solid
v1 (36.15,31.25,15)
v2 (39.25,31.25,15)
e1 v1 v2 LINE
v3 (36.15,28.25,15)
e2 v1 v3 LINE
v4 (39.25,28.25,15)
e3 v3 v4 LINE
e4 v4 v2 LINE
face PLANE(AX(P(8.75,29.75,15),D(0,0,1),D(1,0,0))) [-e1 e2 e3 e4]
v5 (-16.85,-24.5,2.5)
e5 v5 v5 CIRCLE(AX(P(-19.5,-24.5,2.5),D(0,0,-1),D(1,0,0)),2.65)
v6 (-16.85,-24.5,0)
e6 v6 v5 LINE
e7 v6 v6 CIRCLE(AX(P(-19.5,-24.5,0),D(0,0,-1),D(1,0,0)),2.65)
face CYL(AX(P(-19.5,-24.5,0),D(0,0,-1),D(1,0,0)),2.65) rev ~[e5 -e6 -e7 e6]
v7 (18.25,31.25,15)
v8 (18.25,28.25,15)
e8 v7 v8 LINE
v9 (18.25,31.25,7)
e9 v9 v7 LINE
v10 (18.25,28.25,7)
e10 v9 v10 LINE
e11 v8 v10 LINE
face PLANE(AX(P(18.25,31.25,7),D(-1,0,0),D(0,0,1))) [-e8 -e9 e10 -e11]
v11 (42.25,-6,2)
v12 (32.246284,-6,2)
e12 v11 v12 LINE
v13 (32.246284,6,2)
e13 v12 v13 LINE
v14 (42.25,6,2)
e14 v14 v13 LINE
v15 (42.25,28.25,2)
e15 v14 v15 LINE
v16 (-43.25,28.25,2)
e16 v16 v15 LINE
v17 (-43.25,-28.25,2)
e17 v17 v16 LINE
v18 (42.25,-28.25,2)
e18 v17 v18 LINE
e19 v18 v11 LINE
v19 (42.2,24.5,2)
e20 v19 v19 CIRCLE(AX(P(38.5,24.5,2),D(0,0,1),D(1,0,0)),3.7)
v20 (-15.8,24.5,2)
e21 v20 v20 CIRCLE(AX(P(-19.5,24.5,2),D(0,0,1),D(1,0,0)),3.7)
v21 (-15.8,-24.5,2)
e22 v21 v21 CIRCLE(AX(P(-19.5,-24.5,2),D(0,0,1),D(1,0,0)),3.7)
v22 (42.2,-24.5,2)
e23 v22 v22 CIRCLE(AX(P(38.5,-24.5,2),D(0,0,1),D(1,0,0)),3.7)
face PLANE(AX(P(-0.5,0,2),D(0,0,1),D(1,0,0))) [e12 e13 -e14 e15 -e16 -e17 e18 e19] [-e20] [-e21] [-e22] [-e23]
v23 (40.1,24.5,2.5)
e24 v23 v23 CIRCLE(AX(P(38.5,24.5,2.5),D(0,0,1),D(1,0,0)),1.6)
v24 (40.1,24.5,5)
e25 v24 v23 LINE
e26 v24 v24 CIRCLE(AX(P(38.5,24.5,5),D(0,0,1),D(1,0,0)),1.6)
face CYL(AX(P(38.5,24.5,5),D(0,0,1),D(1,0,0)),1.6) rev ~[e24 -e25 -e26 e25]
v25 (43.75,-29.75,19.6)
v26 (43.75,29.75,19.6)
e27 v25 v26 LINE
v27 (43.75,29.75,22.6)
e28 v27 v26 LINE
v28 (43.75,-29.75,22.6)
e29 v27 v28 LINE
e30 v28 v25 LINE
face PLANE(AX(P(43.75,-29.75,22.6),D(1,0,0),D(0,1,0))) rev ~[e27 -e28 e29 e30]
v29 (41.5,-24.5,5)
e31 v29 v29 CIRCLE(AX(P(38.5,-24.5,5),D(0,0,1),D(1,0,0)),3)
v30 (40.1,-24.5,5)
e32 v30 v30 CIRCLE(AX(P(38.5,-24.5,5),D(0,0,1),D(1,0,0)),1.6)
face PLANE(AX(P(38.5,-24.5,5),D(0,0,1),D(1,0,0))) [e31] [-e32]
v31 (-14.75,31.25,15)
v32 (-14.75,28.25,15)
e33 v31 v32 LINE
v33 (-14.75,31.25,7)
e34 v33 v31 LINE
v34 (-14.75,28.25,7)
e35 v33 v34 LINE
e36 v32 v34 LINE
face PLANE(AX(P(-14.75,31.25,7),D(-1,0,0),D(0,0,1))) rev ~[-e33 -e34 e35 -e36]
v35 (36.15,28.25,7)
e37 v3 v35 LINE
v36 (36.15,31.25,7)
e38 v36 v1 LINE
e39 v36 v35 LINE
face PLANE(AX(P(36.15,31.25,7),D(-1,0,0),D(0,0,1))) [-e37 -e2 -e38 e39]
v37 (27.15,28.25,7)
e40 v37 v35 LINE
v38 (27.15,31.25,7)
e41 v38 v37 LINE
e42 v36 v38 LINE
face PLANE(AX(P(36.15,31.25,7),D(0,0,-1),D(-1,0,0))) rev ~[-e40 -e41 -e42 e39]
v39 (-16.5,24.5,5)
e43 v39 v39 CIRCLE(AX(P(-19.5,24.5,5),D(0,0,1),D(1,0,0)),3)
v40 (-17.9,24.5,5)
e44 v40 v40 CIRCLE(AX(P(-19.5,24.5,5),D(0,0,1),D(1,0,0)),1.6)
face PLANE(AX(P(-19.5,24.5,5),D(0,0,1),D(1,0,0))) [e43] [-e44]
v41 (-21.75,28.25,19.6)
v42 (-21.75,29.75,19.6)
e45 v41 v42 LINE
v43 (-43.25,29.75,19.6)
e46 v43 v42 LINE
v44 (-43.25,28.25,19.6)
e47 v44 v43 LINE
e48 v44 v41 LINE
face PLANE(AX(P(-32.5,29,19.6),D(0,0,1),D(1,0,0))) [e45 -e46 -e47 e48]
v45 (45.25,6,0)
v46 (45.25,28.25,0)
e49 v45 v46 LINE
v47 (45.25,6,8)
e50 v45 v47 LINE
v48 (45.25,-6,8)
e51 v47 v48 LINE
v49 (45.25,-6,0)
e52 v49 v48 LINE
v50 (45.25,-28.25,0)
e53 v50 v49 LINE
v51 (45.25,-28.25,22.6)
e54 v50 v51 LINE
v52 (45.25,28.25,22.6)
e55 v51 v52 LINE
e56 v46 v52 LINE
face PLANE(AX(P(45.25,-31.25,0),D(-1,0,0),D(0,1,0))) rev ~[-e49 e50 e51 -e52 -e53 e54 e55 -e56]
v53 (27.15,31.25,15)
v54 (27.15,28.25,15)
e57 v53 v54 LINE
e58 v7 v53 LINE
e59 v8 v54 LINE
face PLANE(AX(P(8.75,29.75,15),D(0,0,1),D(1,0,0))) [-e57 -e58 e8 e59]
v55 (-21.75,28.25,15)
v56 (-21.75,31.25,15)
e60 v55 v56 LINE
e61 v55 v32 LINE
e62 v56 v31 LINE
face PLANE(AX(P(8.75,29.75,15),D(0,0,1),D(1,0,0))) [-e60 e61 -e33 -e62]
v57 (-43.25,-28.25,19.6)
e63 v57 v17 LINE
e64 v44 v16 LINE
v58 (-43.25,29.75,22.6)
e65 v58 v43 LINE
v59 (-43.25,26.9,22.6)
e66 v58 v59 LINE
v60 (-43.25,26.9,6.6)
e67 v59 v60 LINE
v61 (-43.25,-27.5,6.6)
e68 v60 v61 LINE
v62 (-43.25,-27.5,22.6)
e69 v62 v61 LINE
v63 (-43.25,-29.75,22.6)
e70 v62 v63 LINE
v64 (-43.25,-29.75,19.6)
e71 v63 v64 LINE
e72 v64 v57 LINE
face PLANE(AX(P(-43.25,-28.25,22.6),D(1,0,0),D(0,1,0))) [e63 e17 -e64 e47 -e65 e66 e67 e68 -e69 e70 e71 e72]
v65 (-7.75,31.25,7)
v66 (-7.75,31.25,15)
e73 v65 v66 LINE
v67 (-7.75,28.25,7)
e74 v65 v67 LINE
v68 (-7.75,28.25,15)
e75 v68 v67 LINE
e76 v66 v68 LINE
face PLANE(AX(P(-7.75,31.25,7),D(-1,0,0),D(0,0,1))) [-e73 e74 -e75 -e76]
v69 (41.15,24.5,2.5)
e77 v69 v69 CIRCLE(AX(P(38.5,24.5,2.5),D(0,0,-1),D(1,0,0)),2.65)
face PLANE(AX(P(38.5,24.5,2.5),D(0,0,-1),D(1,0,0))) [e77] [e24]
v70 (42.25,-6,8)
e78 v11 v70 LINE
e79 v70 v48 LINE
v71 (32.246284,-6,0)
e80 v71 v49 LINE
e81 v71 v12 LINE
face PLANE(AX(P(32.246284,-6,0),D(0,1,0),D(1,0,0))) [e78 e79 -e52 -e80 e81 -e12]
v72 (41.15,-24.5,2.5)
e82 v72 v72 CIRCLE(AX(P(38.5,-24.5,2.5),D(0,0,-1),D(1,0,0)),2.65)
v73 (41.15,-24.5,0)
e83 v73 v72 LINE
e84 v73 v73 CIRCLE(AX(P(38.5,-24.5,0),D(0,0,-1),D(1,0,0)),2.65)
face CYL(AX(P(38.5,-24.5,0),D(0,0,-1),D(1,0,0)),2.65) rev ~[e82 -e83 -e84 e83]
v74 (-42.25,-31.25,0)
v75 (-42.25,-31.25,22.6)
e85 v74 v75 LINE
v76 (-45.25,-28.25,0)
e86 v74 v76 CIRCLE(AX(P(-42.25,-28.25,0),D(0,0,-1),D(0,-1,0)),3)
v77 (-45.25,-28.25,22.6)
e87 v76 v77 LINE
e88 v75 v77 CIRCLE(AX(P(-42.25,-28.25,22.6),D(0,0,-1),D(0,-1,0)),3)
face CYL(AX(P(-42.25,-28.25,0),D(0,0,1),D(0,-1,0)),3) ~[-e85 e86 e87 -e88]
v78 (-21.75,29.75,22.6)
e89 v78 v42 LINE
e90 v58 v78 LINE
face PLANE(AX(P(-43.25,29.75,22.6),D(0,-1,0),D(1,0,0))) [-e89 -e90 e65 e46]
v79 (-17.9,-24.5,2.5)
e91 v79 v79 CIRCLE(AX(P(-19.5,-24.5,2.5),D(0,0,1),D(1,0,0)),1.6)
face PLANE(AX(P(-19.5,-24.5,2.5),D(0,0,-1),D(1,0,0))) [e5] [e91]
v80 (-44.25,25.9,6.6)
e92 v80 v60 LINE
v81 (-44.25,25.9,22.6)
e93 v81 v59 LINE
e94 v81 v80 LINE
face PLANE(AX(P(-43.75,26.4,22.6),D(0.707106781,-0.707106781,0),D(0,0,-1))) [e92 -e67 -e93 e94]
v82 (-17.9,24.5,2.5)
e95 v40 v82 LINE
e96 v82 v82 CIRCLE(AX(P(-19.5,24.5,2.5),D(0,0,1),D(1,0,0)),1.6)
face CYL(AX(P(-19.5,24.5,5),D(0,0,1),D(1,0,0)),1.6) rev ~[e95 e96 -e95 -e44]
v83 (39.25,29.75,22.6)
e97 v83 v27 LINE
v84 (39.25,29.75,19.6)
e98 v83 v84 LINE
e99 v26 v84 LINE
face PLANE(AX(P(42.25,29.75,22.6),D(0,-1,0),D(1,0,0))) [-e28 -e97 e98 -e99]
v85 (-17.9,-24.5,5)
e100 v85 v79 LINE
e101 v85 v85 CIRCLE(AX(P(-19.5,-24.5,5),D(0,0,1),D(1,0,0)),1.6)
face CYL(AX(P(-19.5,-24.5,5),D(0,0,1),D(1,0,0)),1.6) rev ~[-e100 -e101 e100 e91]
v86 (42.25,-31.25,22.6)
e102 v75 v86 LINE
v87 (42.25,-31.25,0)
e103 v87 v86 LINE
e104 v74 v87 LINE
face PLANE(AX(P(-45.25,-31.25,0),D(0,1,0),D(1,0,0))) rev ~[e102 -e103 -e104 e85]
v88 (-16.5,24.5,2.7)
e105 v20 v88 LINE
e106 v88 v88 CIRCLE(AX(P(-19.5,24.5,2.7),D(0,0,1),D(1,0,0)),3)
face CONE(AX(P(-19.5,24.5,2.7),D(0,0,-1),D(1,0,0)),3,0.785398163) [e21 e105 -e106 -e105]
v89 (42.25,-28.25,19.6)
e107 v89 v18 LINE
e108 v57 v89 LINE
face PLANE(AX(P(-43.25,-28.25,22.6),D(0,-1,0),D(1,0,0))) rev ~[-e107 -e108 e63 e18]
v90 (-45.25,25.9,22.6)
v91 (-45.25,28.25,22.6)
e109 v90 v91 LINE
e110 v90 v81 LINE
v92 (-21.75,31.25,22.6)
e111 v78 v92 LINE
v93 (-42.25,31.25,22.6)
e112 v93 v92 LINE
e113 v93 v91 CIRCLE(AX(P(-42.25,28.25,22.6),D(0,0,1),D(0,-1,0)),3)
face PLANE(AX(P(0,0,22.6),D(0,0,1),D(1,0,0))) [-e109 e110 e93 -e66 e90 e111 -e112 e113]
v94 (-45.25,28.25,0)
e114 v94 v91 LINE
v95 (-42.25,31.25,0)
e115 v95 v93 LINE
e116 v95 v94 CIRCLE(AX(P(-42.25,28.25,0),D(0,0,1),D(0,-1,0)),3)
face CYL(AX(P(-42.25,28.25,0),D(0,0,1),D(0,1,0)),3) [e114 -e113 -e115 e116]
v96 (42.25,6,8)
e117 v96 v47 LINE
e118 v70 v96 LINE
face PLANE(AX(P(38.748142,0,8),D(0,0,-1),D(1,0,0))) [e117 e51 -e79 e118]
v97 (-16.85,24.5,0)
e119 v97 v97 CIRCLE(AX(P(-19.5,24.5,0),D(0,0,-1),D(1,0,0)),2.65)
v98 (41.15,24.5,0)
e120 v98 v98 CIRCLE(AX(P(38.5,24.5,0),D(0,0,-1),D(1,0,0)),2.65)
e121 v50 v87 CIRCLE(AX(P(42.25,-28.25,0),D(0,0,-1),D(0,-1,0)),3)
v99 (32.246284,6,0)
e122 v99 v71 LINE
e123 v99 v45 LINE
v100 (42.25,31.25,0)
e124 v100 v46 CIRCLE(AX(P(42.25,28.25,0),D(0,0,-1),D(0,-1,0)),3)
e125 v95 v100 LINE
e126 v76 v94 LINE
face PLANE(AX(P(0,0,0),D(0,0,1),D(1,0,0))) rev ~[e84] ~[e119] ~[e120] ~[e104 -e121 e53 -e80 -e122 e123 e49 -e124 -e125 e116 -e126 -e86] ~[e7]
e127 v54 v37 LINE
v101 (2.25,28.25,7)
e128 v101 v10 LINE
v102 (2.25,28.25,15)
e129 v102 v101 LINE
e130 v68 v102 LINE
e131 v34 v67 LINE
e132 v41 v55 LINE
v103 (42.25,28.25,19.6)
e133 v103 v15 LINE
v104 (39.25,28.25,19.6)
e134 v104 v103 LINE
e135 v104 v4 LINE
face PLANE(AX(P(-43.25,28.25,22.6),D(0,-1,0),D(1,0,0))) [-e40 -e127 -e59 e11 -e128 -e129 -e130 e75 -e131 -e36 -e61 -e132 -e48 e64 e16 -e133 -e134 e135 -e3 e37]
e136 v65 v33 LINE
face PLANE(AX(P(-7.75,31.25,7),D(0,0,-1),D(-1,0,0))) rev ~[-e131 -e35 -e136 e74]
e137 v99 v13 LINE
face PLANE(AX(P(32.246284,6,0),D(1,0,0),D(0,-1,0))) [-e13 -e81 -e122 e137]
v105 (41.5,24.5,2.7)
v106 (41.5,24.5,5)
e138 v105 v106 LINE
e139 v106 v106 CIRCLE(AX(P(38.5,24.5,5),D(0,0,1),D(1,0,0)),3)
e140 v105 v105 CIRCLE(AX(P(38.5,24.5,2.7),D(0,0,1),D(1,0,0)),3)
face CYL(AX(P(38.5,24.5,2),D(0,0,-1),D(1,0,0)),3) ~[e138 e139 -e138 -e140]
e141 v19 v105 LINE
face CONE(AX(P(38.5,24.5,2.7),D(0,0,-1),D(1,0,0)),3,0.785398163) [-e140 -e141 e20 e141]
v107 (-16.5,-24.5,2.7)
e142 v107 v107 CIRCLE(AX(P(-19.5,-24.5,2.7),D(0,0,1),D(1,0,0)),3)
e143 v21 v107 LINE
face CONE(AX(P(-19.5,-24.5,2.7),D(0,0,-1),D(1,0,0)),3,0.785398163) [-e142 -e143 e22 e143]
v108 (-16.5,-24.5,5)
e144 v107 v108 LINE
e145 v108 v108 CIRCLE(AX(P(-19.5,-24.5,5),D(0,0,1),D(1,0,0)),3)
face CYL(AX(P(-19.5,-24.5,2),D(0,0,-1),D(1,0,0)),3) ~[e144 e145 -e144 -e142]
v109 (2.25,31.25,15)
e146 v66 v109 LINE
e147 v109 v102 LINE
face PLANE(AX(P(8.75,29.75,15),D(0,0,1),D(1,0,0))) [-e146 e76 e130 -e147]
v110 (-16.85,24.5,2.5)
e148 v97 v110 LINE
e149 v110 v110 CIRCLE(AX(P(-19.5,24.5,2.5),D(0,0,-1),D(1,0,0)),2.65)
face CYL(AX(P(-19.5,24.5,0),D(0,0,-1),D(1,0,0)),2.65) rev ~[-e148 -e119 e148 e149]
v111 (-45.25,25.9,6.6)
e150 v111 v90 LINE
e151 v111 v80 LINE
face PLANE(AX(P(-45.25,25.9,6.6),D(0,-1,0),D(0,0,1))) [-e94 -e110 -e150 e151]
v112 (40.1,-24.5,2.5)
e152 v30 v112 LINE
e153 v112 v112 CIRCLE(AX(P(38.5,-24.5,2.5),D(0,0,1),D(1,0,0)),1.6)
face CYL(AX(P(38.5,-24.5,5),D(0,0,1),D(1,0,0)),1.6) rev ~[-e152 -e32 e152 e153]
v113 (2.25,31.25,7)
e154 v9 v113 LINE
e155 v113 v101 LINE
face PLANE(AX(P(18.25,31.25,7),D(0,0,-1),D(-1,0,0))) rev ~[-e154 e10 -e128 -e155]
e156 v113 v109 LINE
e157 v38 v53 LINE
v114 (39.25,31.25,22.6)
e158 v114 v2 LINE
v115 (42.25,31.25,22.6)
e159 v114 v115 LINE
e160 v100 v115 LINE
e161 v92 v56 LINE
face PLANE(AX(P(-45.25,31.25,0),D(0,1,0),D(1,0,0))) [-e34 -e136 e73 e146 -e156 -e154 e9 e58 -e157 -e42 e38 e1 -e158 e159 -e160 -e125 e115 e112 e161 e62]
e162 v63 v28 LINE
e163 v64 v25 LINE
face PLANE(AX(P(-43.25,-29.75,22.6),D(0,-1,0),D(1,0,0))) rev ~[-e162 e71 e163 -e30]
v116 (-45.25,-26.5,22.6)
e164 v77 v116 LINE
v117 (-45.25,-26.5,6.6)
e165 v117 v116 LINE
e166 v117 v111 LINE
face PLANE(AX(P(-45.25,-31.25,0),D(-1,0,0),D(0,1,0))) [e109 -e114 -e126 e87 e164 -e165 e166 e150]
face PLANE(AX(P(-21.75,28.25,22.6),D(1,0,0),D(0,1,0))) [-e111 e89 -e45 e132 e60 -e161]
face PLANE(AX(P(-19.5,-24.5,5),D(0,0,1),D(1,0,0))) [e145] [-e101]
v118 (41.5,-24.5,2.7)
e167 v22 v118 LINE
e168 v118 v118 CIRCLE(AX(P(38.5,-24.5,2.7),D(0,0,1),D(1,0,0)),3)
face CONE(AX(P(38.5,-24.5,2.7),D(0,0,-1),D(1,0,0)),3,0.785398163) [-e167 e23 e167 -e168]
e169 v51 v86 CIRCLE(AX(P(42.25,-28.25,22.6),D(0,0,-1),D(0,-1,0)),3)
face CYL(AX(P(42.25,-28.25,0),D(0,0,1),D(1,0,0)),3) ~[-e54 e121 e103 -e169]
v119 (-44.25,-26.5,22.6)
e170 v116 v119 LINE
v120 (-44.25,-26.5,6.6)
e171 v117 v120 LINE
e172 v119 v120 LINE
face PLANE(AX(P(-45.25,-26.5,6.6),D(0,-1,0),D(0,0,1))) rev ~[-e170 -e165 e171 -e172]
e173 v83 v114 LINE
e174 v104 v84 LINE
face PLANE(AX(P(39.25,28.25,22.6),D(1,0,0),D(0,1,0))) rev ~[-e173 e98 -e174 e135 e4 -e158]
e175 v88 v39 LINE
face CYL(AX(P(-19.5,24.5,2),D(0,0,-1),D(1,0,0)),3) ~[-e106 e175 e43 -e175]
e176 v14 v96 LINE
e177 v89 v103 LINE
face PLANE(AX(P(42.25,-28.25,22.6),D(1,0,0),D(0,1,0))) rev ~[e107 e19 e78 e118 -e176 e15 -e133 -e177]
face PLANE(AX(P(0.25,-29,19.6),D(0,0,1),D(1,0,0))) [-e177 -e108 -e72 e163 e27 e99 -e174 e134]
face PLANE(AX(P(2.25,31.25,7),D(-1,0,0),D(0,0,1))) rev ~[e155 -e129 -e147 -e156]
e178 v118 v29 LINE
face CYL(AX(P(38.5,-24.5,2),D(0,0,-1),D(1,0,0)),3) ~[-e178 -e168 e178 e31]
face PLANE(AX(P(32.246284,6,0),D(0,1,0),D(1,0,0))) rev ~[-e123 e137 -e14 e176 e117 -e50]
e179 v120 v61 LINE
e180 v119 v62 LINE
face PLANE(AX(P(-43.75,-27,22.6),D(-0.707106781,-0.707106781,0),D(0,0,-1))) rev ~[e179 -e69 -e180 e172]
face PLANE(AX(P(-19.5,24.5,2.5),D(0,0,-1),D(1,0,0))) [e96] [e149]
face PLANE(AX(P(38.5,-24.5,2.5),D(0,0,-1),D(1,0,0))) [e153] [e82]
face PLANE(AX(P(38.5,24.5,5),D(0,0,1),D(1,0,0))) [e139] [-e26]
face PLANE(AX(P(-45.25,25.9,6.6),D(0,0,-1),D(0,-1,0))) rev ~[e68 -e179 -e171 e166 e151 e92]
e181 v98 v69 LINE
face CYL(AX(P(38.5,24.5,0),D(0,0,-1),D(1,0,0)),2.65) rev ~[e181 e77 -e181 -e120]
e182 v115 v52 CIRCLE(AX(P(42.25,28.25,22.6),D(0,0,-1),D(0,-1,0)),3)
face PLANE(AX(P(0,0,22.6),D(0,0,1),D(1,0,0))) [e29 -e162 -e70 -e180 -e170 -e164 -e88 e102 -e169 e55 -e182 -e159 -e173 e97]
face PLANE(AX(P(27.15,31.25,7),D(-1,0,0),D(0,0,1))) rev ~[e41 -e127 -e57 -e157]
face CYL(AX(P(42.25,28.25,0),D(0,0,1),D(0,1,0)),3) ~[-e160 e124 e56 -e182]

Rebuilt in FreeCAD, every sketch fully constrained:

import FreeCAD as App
import Part
import Sketcher
Q = App.Units.Quantity


def edges_at(feature, points):
    """Names of the edges that pass closest to the given points."""
    edges = feature.Shape.Edges
    near = lambda p: min(range(len(edges)), key=lambda i: edges[i].distToShape(Part.Vertex(*p))[0])
    return sorted({f"Edge{near(p) + 1}" for p in points})

doc = App.newDocument("Part")
body = doc.addObject("PartDesign::Body", "Body")

# Sketch on XY plane
sketch1 = body.newObject("Sketcher::SketchObject", "Sketch")
sketch1.AttachmentSupport = (doc.getObject("XY_Plane"), [""])
sketch1.MapMode = "FlatFace"
sketch1.addGeometry(Part.LineSegment(App.Vector(-45, 31, 0), App.Vector(-45, -31, 0)), False)
sketch1.addGeometry(Part.LineSegment(App.Vector(-45, -31, 0), App.Vector(45, -31, 0)), False)
sketch1.addGeometry(Part.LineSegment(App.Vector(45, -31, 0), App.Vector(45, 31, 0)), False)
sketch1.addGeometry(Part.LineSegment(App.Vector(45, 31, 0), App.Vector(-45, 31, 0)), False)
sketch1.addConstraint(Sketcher.Constraint("Coincident", 0, 2, 1, 1))
sketch1.addConstraint(Sketcher.Constraint("Coincident", 1, 2, 2, 1))
sketch1.addConstraint(Sketcher.Constraint("Coincident", 2, 2, 3, 1))
sketch1.addConstraint(Sketcher.Constraint("Coincident", 3, 2, 0, 1))
sketch1.addConstraint(Sketcher.Constraint("Vertical", 0))
sketch1.addConstraint(Sketcher.Constraint("Horizontal", 1))
sketch1.addConstraint(Sketcher.Constraint("Vertical", 2))
sketch1.addConstraint(Sketcher.Constraint("Horizontal", 3))
sketch1.addConstraint(Sketcher.Constraint("Symmetric", 0, 2, 2, 2, -1, 1))
sketch1.addConstraint(Sketcher.Constraint("DistanceX", 1, 1, 1, 2, Q("90.5 mm")))
sketch1.addConstraint(Sketcher.Constraint("DistanceY", 0, 2, 0, 1, Q("62.5 mm")))
pad1 = body.newObject("PartDesign::Pad", "Pad")
pad1.Profile = sketch1
pad1.Length = 22.6

# Sketch on XY plane
sketch2 = body.newObject("Sketcher::SketchObject", "Sketch001")
sketch2.AttachmentSupport = (doc.getObject("XY_Plane"), [""])
sketch2.MapMode = "FlatFace"
sketch2.AttachmentOffset = App.Placement(App.Vector(0, 0, 22.6), App.Rotation())
sketch2.addGeometry(Part.LineSegment(App.Vector(-43, 28, 0), App.Vector(-43, -28, 0)), False)
sketch2.addGeometry(Part.LineSegment(App.Vector(-43, -28, 0), App.Vector(42, -28, 0)), False)
sketch2.addGeometry(Part.LineSegment(App.Vector(42, -28, 0), App.Vector(42, 28, 0)), False)
sketch2.addGeometry(Part.LineSegment(App.Vector(42, 28, 0), App.Vector(-43, 28, 0)), False)
sketch2.addConstraint(Sketcher.Constraint("Coincident", 0, 2, 1, 1))
sketch2.addConstraint(Sketcher.Constraint("Coincident", 1, 2, 2, 1))
sketch2.addConstraint(Sketcher.Constraint("Coincident", 2, 2, 3, 1))
sketch2.addConstraint(Sketcher.Constraint("Coincident", 3, 2, 0, 1))
sketch2.addConstraint(Sketcher.Constraint("Vertical", 0))
sketch2.addConstraint(Sketcher.Constraint("Horizontal", 1))
sketch2.addConstraint(Sketcher.Constraint("Vertical", 2))
sketch2.addConstraint(Sketcher.Constraint("Horizontal", 3))
sketch2.addConstraint(Sketcher.Constraint("DistanceX", 1, 1, 1, 2, Q("85.5 mm")))
sketch2.addConstraint(Sketcher.Constraint("DistanceY", 0, 2, 0, 1, Q("56.5 mm")))
sketch2.addConstraint(Sketcher.Constraint("DistanceX", 0, 2, -1, 1, Q("43.25 mm")))
sketch2.addConstraint(Sketcher.Constraint("DistanceY", 0, 2, -1, 1, Q("28.25 mm")))
pocket1 = body.newObject("PartDesign::Pocket", "Pocket")
pocket1.Profile = sketch2
pocket1.Length = 20.6

# Sketch on YZ plane
sketch3 = body.newObject("Sketcher::SketchObject", "Sketch002")
sketch3.AttachmentSupport = (doc.getObject("YZ_Plane"), [""])
sketch3.MapMode = "FlatFace"
sketch3.AttachmentOffset = App.Placement(App.Vector(0, 0, -45.25), App.Rotation())
sketch3.addGeometry(Part.LineSegment(App.Vector(-12, 23, 0), App.Vector(-12, 7, 0)), False)
sketch3.addGeometry(Part.LineSegment(App.Vector(-12, 7, 0), App.Vector(-26, 7, 0)), False)
sketch3.addGeometry(Part.LineSegment(App.Vector(-26, 7, 0), App.Vector(-26, 23, 0)), False)
sketch3.addGeometry(Part.LineSegment(App.Vector(-26, 23, 0), App.Vector(-12, 23, 0)), False)
sketch3.addGeometry(Part.LineSegment(App.Vector(6, 23, 0), App.Vector(6, 7, 0)), False)
sketch3.addGeometry(Part.LineSegment(App.Vector(6, 7, 0), App.Vector(-8, 7, 0)), False)
sketch3.addGeometry(Part.LineSegment(App.Vector(-8, 7, 0), App.Vector(-8, 23, 0)), False)
sketch3.addGeometry(Part.LineSegment(App.Vector(-8, 23, 0), App.Vector(6, 23, 0)), False)
sketch3.addGeometry(Part.LineSegment(App.Vector(26, 23, 0), App.Vector(26, 7, 0)), False)
sketch3.addGeometry(Part.LineSegment(App.Vector(26, 7, 0), App.Vector(10, 7, 0)), False)
sketch3.addGeometry(Part.LineSegment(App.Vector(10, 7, 0), App.Vector(10, 23, 0)), False)
sketch3.addGeometry(Part.LineSegment(App.Vector(10, 23, 0), App.Vector(26, 23, 0)), False)
sketch3.addConstraint(Sketcher.Constraint("Coincident", 0, 2, 1, 1))
sketch3.addConstraint(Sketcher.Constraint("Coincident", 1, 2, 2, 1))
sketch3.addConstraint(Sketcher.Constraint("Coincident", 2, 2, 3, 1))
sketch3.addConstraint(Sketcher.Constraint("Coincident", 3, 2, 0, 1))
sketch3.addConstraint(Sketcher.Constraint("Coincident", 4, 2, 5, 1))
sketch3.addConstraint(Sketcher.Constraint("Coincident", 5, 2, 6, 1))
sketch3.addConstraint(Sketcher.Constraint("Coincident", 6, 2, 7, 1))
sketch3.addConstraint(Sketcher.Constraint("Coincident", 7, 2, 4, 1))
sketch3.addConstraint(Sketcher.Constraint("Coincident", 8, 2, 9, 1))
sketch3.addConstraint(Sketcher.Constraint("Coincident", 9, 2, 10, 1))
sketch3.addConstraint(Sketcher.Constraint("Coincident", 10, 2, 11, 1))
sketch3.addConstraint(Sketcher.Constraint("Coincident", 11, 2, 8, 1))
sketch3.addConstraint(Sketcher.Constraint("Vertical", 0))
sketch3.addConstraint(Sketcher.Constraint("Horizontal", 1))
sketch3.addConstraint(Sketcher.Constraint("Vertical", 2))
sketch3.addConstraint(Sketcher.Constraint("Horizontal", 3))
sketch3.addConstraint(Sketcher.Constraint("Vertical", 4))
sketch3.addConstraint(Sketcher.Constraint("Horizontal", 5))
sketch3.addConstraint(Sketcher.Constraint("Vertical", 6))
sketch3.addConstraint(Sketcher.Constraint("Horizontal", 7))
sketch3.addConstraint(Sketcher.Constraint("Vertical", 8))
sketch3.addConstraint(Sketcher.Constraint("Horizontal", 9))
sketch3.addConstraint(Sketcher.Constraint("Vertical", 10))
sketch3.addConstraint(Sketcher.Constraint("Horizontal", 11))
sketch3.addConstraint(Sketcher.Constraint("Horizontal", 1, 2, 4, 2))
sketch3.addConstraint(Sketcher.Constraint("Horizontal", 3, 2, 6, 2))
sketch3.addConstraint(Sketcher.Constraint("Horizontal", 5, 2, 8, 2))
sketch3.addConstraint(Sketcher.Constraint("Horizontal", 7, 2, 10, 2))
sketch3.addConstraint(Sketcher.Constraint("Equal", 3, 5))
sketch3.addConstraint(Sketcher.Constraint("DistanceX", 1, 2, 1, 1, Q("15 mm")))
sketch3.addConstraint(Sketcher.Constraint("DistanceY", 0, 2, 0, 1, Q("16 mm")))
sketch3.addConstraint(Sketcher.Constraint("DistanceX", 9, 2, 9, 1, Q("16.3 mm")))
sketch3.addConstraint(Sketcher.Constraint("DistanceX", 0, 2, 4, 2, Q("18 mm")))
sketch3.addConstraint(Sketcher.Constraint("DistanceX", 0, 2, -1, 1, Q("11.5 mm")))
sketch3.addConstraint(Sketcher.Constraint("DistanceY", -1, 1, 0, 2, Q("6.6 mm")))
sketch3.addConstraint(Sketcher.Constraint("DistanceX", -1, 1, 8, 2, Q("25.9 mm")))
pocket2 = body.newObject("PartDesign::Pocket", "Pocket001")
pocket2.Profile = sketch3
pocket2.Length = 5
pocket2.Reversed = True

# Sketch on XY plane
sketch4 = body.newObject("Sketcher::SketchObject", "Sketch003")
sketch4.AttachmentSupport = (doc.getObject("XY_Plane"), [""])
sketch4.MapMode = "FlatFace"
sketch4.AttachmentOffset = App.Placement(App.Vector(0, 0, 2), App.Rotation())
sketch4.addGeometry(Part.Circle(App.Vector(-19.5, 24.5, 0), App.Vector(0, 0, 1), 3), False)
sketch4.addGeometry(Part.Circle(App.Vector(38.5, 24.5, 0), App.Vector(0, 0, 1), 3), False)
sketch4.addGeometry(Part.Circle(App.Vector(-19.5, -24.5, 0), App.Vector(0, 0, 1), 3), False)
sketch4.addGeometry(Part.Circle(App.Vector(38.5, -24.5, 0), App.Vector(0, 0, 1), 3), False)
sketch4.addConstraint(Sketcher.Constraint("Equal", 0, 1))
sketch4.addConstraint(Sketcher.Constraint("Equal", 1, 2))
sketch4.addConstraint(Sketcher.Constraint("Equal", 2, 3))
sketch4.addConstraint(Sketcher.Constraint("Symmetric", 0, 3, 2, 3, -1))
sketch4.addConstraint(Sketcher.Constraint("Symmetric", 1, 3, 3, 3, -1))
sketch4.addConstraint(Sketcher.Constraint("Horizontal", 0, 3, 1, 3))
sketch4.addConstraint(Sketcher.Constraint("Diameter", 0, Q("6 mm")))
sketch4.addConstraint(Sketcher.Constraint("DistanceX", 0, 3, 1, 3, Q("58 mm")))
sketch4.addConstraint(Sketcher.Constraint("DistanceY", 2, 3, 0, 3, Q("49 mm")))
sketch4.addConstraint(Sketcher.Constraint("DistanceX", 0, 3, -1, 1, Q("19.5 mm")))
pad2 = body.newObject("PartDesign::Pad", "Pad001")
pad2.Profile = sketch4
pad2.Length = 3

# Sketch on XY plane
sketch5 = body.newObject("Sketcher::SketchObject", "Sketch004")
sketch5.AttachmentSupport = (doc.getObject("XY_Plane"), [""])
sketch5.MapMode = "FlatFace"
sketch5.AttachmentOffset = App.Placement(App.Vector(0, 0, 5), App.Rotation())
sketch5.addGeometry(Part.Circle(App.Vector(-19.5, 24.5, 0), App.Vector(0, 0, 1), 1.6), False)
sketch5.addGeometry(Part.Circle(App.Vector(38.5, 24.5, 0), App.Vector(0, 0, 1), 1.6), False)
sketch5.addGeometry(Part.Circle(App.Vector(-19.5, -24.5, 0), App.Vector(0, 0, 1), 1.6), False)
sketch5.addGeometry(Part.Circle(App.Vector(38.5, -24.5, 0), App.Vector(0, 0, 1), 1.6), False)
sketch5.addConstraint(Sketcher.Constraint("Equal", 0, 1))
sketch5.addConstraint(Sketcher.Constraint("Equal", 1, 2))
sketch5.addConstraint(Sketcher.Constraint("Equal", 2, 3))
sketch5.addConstraint(Sketcher.Constraint("Symmetric", 0, 3, 2, 3, -1))
sketch5.addConstraint(Sketcher.Constraint("Symmetric", 1, 3, 3, 3, -1))
sketch5.addConstraint(Sketcher.Constraint("Horizontal", 0, 3, 1, 3))
sketch5.addConstraint(Sketcher.Constraint("Diameter", 0, Q("3.2 mm")))
sketch5.addConstraint(Sketcher.Constraint("DistanceX", 0, 3, 1, 3, Q("58 mm")))
sketch5.addConstraint(Sketcher.Constraint("DistanceY", 2, 3, 0, 3, Q("49 mm")))
sketch5.addConstraint(Sketcher.Constraint("DistanceX", 0, 3, -1, 1, Q("19.5 mm")))
pocket3 = body.newObject("PartDesign::Pocket", "Pocket002")
pocket3.Profile = sketch5
pocket3.Length = 5

# Sketch on XY plane
sketch6 = body.newObject("Sketcher::SketchObject", "Sketch005")
sketch6.AttachmentSupport = (doc.getObject("XY_Plane"), [""])
sketch6.MapMode = "FlatFace"
sketch6.addGeometry(Part.Circle(App.Vector(38.5, -24.5, 0), App.Vector(0, 0, 1), 2.6), False)
sketch6.addGeometry(Part.Circle(App.Vector(-19.5, -24.5, 0), App.Vector(0, 0, 1), 2.6), False)
sketch6.addGeometry(Part.Circle(App.Vector(-19.5, 24.5, 0), App.Vector(0, 0, 1), 2.6), False)
sketch6.addGeometry(Part.Circle(App.Vector(38.5, 24.5, 0), App.Vector(0, 0, 1), 2.6), False)
sketch6.addConstraint(Sketcher.Constraint("Equal", 0, 1))
sketch6.addConstraint(Sketcher.Constraint("Equal", 1, 2))
sketch6.addConstraint(Sketcher.Constraint("Equal", 2, 3))
sketch6.addConstraint(Sketcher.Constraint("Symmetric", 1, 3, 2, 3, -1))
sketch6.addConstraint(Sketcher.Constraint("Symmetric", 0, 3, 3, 3, -1))
sketch6.addConstraint(Sketcher.Constraint("Horizontal", 0, 3, 1, 3))
sketch6.addConstraint(Sketcher.Constraint("Diameter", 0, Q("5.3 mm")))
sketch6.addConstraint(Sketcher.Constraint("DistanceX", 1, 3, 0, 3, Q("58 mm")))
sketch6.addConstraint(Sketcher.Constraint("DistanceY", 1, 3, 2, 3, Q("49 mm")))
sketch6.addConstraint(Sketcher.Constraint("DistanceX", -1, 1, 0, 3, Q("38.5 mm")))
pocket4 = body.newObject("PartDesign::Pocket", "Pocket003")
pocket4.Profile = sketch6
pocket4.Length = 2.5
pocket4.Reversed = True
doc.recompute()

chamfer = body.newObject("PartDesign::Chamfer", "Chamfer")
chamfer.Base = (pocket4, edges_at(pocket4, [
    (-22.5, -24.5, 2),
    (35.5, -24.5, 2),
    (-22.5, 24.5, 2),
    (35.5, 24.5, 2),
]))
chamfer.Size = 0.7

# Sketch on XY plane
sketch7 = body.newObject("Sketcher::SketchObject", "Sketch006")
sketch7.AttachmentSupport = (doc.getObject("XY_Plane"), [""])
sketch7.MapMode = "FlatFace"
sketch7.AttachmentOffset = App.Placement(App.Vector(0, 0, 22.6), App.Rotation())
sketch7.addGeometry(Part.LineSegment(App.Vector(-21.8, 31.2, 0), App.Vector(-21.8, 28.2, 0)), False)
sketch7.addGeometry(Part.LineSegment(App.Vector(-21.8, 28.2, 0), App.Vector(39.2, 28.2, 0)), False)
sketch7.addGeometry(Part.LineSegment(App.Vector(39.2, 28.2, 0), App.Vector(39.2, 31.2, 0)), False)
sketch7.addGeometry(Part.LineSegment(App.Vector(39.2, 31.2, 0), App.Vector(-21.8, 31.2, 0)), False)
sketch7.addConstraint(Sketcher.Constraint("Coincident", 0, 2, 1, 1))
sketch7.addConstraint(Sketcher.Constraint("Coincident", 1, 2, 2, 1))
sketch7.addConstraint(Sketcher.Constraint("Coincident", 2, 2, 3, 1))
sketch7.addConstraint(Sketcher.Constraint("Coincident", 3, 2, 0, 1))
sketch7.addConstraint(Sketcher.Constraint("Vertical", 0))
sketch7.addConstraint(Sketcher.Constraint("Horizontal", 1))
sketch7.addConstraint(Sketcher.Constraint("Vertical", 2))
sketch7.addConstraint(Sketcher.Constraint("Horizontal", 3))
sketch7.addConstraint(Sketcher.Constraint("DistanceX", 1, 1, 1, 2, Q("61 mm")))
sketch7.addConstraint(Sketcher.Constraint("DistanceY", 0, 2, 0, 1, Q("3 mm")))
sketch7.addConstraint(Sketcher.Constraint("DistanceX", 0, 2, -1, 1, Q("21.75 mm")))
sketch7.addConstraint(Sketcher.Constraint("DistanceY", -1, 1, 0, 2, Q("28.25 mm")))
pocket5 = body.newObject("PartDesign::Pocket", "Pocket004")
pocket5.Profile = sketch7
pocket5.Length = 7.6

# Sketch on XY plane
sketch8 = body.newObject("Sketcher::SketchObject", "Sketch007")
sketch8.AttachmentSupport = (doc.getObject("XY_Plane"), [""])
sketch8.MapMode = "FlatFace"
sketch8.AttachmentOffset = App.Placement(App.Vector(0, 0, 22.6), App.Rotation())
sketch8.addGeometry(Part.LineSegment(App.Vector(-43.2, 29.8, 0), App.Vector(-43.2, 28.2, 0)), False)
sketch8.addGeometry(Part.LineSegment(App.Vector(-43.2, 28.2, 0), App.Vector(-21.8, 28.2, 0)), False)
sketch8.addGeometry(Part.LineSegment(App.Vector(-21.8, 28.2, 0), App.Vector(-21.8, 29.8, 0)), False)
sketch8.addGeometry(Part.LineSegment(App.Vector(-21.8, 29.8, 0), App.Vector(-43.2, 29.8, 0)), False)
sketch8.addConstraint(Sketcher.Constraint("Coincident", 0, 2, 1, 1))
sketch8.addConstraint(Sketcher.Constraint("Coincident", 1, 2, 2, 1))
sketch8.addConstraint(Sketcher.Constraint("Coincident", 2, 2, 3, 1))
sketch8.addConstraint(Sketcher.Constraint("Coincident", 3, 2, 0, 1))
sketch8.addConstraint(Sketcher.Constraint("Vertical", 0))
sketch8.addConstraint(Sketcher.Constraint("Horizontal", 1))
sketch8.addConstraint(Sketcher.Constraint("Vertical", 2))
sketch8.addConstraint(Sketcher.Constraint("Horizontal", 3))
sketch8.addConstraint(Sketcher.Constraint("DistanceX", 1, 1, 1, 2, Q("21.5 mm")))
sketch8.addConstraint(Sketcher.Constraint("DistanceY", 0, 2, 0, 1, Q("1.5 mm")))
sketch8.addConstraint(Sketcher.Constraint("DistanceX", 0, 2, -1, 1, Q("43.25 mm")))
sketch8.addConstraint(Sketcher.Constraint("DistanceY", -1, 1, 0, 2, Q("28.25 mm")))
pocket6 = body.newObject("PartDesign::Pocket", "Pocket005")
pocket6.Profile = sketch8
pocket6.Length = 3

# Sketch on XY plane
sketch9 = body.newObject("Sketcher::SketchObject", "Sketch008")
sketch9.AttachmentSupport = (doc.getObject("XY_Plane"), [""])
sketch9.MapMode = "FlatFace"
sketch9.AttachmentOffset = App.Placement(App.Vector(0, 0, 22.6), App.Rotation())
sketch9.addGeometry(Part.LineSegment(App.Vector(39.2, 29.8, 0), App.Vector(39.2, 28.2, 0)), False)
sketch9.addGeometry(Part.LineSegment(App.Vector(39.2, 28.2, 0), App.Vector(42.2, 28.2, 0)), False)
sketch9.addGeometry(Part.LineSegment(App.Vector(42.2, 28.2, 0), App.Vector(42.2, 29.8, 0)), False)
sketch9.addGeometry(Part.LineSegment(App.Vector(42.2, 29.8, 0), App.Vector(39.2, 29.8, 0)), False)
sketch9.addConstraint(Sketcher.Constraint("Coincident", 0, 2, 1, 1))
sketch9.addConstraint(Sketcher.Constraint("Coincident", 1, 2, 2, 1))
sketch9.addConstraint(Sketcher.Constraint("Coincident", 2, 2, 3, 1))
sketch9.addConstraint(Sketcher.Constraint("Coincident", 3, 2, 0, 1))
sketch9.addConstraint(Sketcher.Constraint("Vertical", 0))
sketch9.addConstraint(Sketcher.Constraint("Horizontal", 1))
sketch9.addConstraint(Sketcher.Constraint("Vertical", 2))
sketch9.addConstraint(Sketcher.Constraint("Horizontal", 3))
sketch9.addConstraint(Sketcher.Constraint("DistanceX", 1, 1, 1, 2, Q("3 mm")))
sketch9.addConstraint(Sketcher.Constraint("DistanceY", 0, 2, 0, 1, Q("1.5 mm")))
sketch9.addConstraint(Sketcher.Constraint("DistanceX", -1, 1, 0, 2, Q("39.25 mm")))
sketch9.addConstraint(Sketcher.Constraint("DistanceY", -1, 1, 0, 2, Q("28.25 mm")))
pocket7 = body.newObject("PartDesign::Pocket", "Pocket006")
pocket7.Profile = sketch9
pocket7.Length = 3

# Sketch on XY plane
sketch10 = body.newObject("Sketcher::SketchObject", "Sketch009")
sketch10.AttachmentSupport = (doc.getObject("XY_Plane"), [""])
sketch10.MapMode = "FlatFace"
sketch10.AttachmentOffset = App.Placement(App.Vector(0, 0, 22.6), App.Rotation())
sketch10.addGeometry(Part.LineSegment(App.Vector(42.2, 29.8, 0), App.Vector(42.2, -28.2, 0)), False)
sketch10.addGeometry(Part.LineSegment(App.Vector(42.2, -28.2, 0), App.Vector(43.8, -28.2, 0)), False)
sketch10.addGeometry(Part.LineSegment(App.Vector(43.8, -28.2, 0), App.Vector(43.8, 29.8, 0)), False)
sketch10.addGeometry(Part.LineSegment(App.Vector(43.8, 29.8, 0), App.Vector(42.2, 29.8, 0)), False)
sketch10.addConstraint(Sketcher.Constraint("Coincident", 0, 2, 1, 1))
sketch10.addConstraint(Sketcher.Constraint("Coincident", 1, 2, 2, 1))
sketch10.addConstraint(Sketcher.Constraint("Coincident", 2, 2, 3, 1))
sketch10.addConstraint(Sketcher.Constraint("Coincident", 3, 2, 0, 1))
sketch10.addConstraint(Sketcher.Constraint("Vertical", 0))
sketch10.addConstraint(Sketcher.Constraint("Horizontal", 1))
sketch10.addConstraint(Sketcher.Constraint("Vertical", 2))
sketch10.addConstraint(Sketcher.Constraint("Horizontal", 3))
sketch10.addConstraint(Sketcher.Constraint("DistanceY", 0, 2, 0, 1, Q("58 mm")))
sketch10.addConstraint(Sketcher.Constraint("DistanceX", 1, 1, 1, 2, Q("1.5 mm")))
sketch10.addConstraint(Sketcher.Constraint("DistanceX", -1, 1, 0, 2, Q("42.25 mm")))
sketch10.addConstraint(Sketcher.Constraint("DistanceY", 0, 2, -1, 1, Q("28.25 mm")))
pocket8 = body.newObject("PartDesign::Pocket", "Pocket007")
pocket8.Profile = sketch10
pocket8.Length = 3

# Sketch on XY plane
sketch11 = body.newObject("Sketcher::SketchObject", "Sketch010")
sketch11.AttachmentSupport = (doc.getObject("XY_Plane"), [""])
sketch11.MapMode = "FlatFace"
sketch11.AttachmentOffset = App.Placement(App.Vector(0, 0, 22.6), App.Rotation())
sketch11.addGeometry(Part.LineSegment(App.Vector(-43.2, -28.2, 0), App.Vector(-43.2, -29.8, 0)), False)
sketch11.addGeometry(Part.LineSegment(App.Vector(-43.2, -29.8, 0), App.Vector(43.8, -29.8, 0)), False)
sketch11.addGeometry(Part.LineSegment(App.Vector(43.8, -29.8, 0), App.Vector(43.8, -28.2, 0)), False)
sketch11.addGeometry(Part.LineSegment(App.Vector(43.8, -28.2, 0), App.Vector(-43.2, -28.2, 0)), False)
sketch11.addConstraint(Sketcher.Constraint("Coincident", 0, 2, 1, 1))
sketch11.addConstraint(Sketcher.Constraint("Coincident", 1, 2, 2, 1))
sketch11.addConstraint(Sketcher.Constraint("Coincident", 2, 2, 3, 1))
sketch11.addConstraint(Sketcher.Constraint("Coincident", 3, 2, 0, 1))
sketch11.addConstraint(Sketcher.Constraint("Vertical", 0))
sketch11.addConstraint(Sketcher.Constraint("Horizontal", 1))
sketch11.addConstraint(Sketcher.Constraint("Vertical", 2))
sketch11.addConstraint(Sketcher.Constraint("Horizontal", 3))
sketch11.addConstraint(Sketcher.Constraint("DistanceX", 1, 1, 1, 2, Q("87 mm")))
sketch11.addConstraint(Sketcher.Constraint("DistanceY", 0, 2, 0, 1, Q("1.5 mm")))
sketch11.addConstraint(Sketcher.Constraint("DistanceX", 0, 2, -1, 1, Q("43.25 mm")))
sketch11.addConstraint(Sketcher.Constraint("DistanceY", 0, 2, -1, 1, Q("29.75 mm")))
pocket9 = body.newObject("PartDesign::Pocket", "Pocket008")
pocket9.Profile = sketch11
pocket9.Length = 3
doc.recompute()

chamfer2 = body.newObject("PartDesign::Chamfer", "Chamfer001")
chamfer2.Base = (pocket9, edges_at(pocket9, [
    (-43.25, -11.5, 14.6),
    (-43.25, -8.5, 14.6),
    (-43.25, 6.5, 14.6),
    (-43.25, 9.6, 14.6),
    (-43.25, 25.9, 14.6),
    (-43.25, -26.5, 14.6),
]))
chamfer2.Size = 1
doc.recompute()

fillet = body.newObject("PartDesign::Fillet", "Fillet")
fillet.Base = (chamfer2, edges_at(chamfer2, [
    (-45.25, -31.25, 11.3),
    (45.25, -31.25, 11.3),
    (-45.25, 31.25, 11.3),
    (45.25, 31.25, 11.3),
]))
fillet.Radius = 3

# Sketch on XZ plane
sketch12 = body.newObject("Sketcher::SketchObject", "Sketch011")
sketch12.AttachmentSupport = (doc.getObject("XZ_Plane"), [""])
sketch12.MapMode = "FlatFace"
sketch12.AttachmentOffset = App.Placement(App.Vector(0, 0, -31.25), App.Rotation())
sketch12.addGeometry(Part.LineSegment(App.Vector(36, 15, 0), App.Vector(36, 7, 0)), False)
sketch12.addGeometry(Part.LineSegment(App.Vector(36, 7, 0), App.Vector(27, 7, 0)), False)
sketch12.addGeometry(Part.LineSegment(App.Vector(27, 7, 0), App.Vector(27, 15, 0)), False)
sketch12.addGeometry(Part.LineSegment(App.Vector(27, 15, 0), App.Vector(36, 15, 0)), False)
sketch12.addGeometry(Part.LineSegment(App.Vector(18, 15, 0), App.Vector(18, 7, 0)), False)
sketch12.addGeometry(Part.LineSegment(App.Vector(18, 7, 0), App.Vector(2, 7, 0)), False)
sketch12.addGeometry(Part.LineSegment(App.Vector(2, 7, 0), App.Vector(2, 15, 0)), False)
sketch12.addGeometry(Part.LineSegment(App.Vector(2, 15, 0), App.Vector(18, 15, 0)), False)
sketch12.addGeometry(Part.LineSegment(App.Vector(-8, 15, 0), App.Vector(-8, 7, 0)), False)
sketch12.addGeometry(Part.LineSegment(App.Vector(-8, 7, 0), App.Vector(-15, 7, 0)), False)
sketch12.addGeometry(Part.LineSegment(App.Vector(-15, 7, 0), App.Vector(-15, 15, 0)), False)
sketch12.addGeometry(Part.LineSegment(App.Vector(-15, 15, 0), App.Vector(-8, 15, 0)), False)
sketch12.addConstraint(Sketcher.Constraint("Coincident", 0, 2, 1, 1))
sketch12.addConstraint(Sketcher.Constraint("Coincident", 1, 2, 2, 1))
sketch12.addConstraint(Sketcher.Constraint("Coincident", 2, 2, 3, 1))
sketch12.addConstraint(Sketcher.Constraint("Coincident", 3, 2, 0, 1))
sketch12.addConstraint(Sketcher.Constraint("Coincident", 4, 2, 5, 1))
sketch12.addConstraint(Sketcher.Constraint("Coincident", 5, 2, 6, 1))
sketch12.addConstraint(Sketcher.Constraint("Coincident", 6, 2, 7, 1))
sketch12.addConstraint(Sketcher.Constraint("Coincident", 7, 2, 4, 1))
sketch12.addConstraint(Sketcher.Constraint("Coincident", 8, 2, 9, 1))
sketch12.addConstraint(Sketcher.Constraint("Coincident", 9, 2, 10, 1))
sketch12.addConstraint(Sketcher.Constraint("Coincident", 10, 2, 11, 1))
sketch12.addConstraint(Sketcher.Constraint("Coincident", 11, 2, 8, 1))
sketch12.addConstraint(Sketcher.Constraint("Vertical", 0))
sketch12.addConstraint(Sketcher.Constraint("Horizontal", 1))
sketch12.addConstraint(Sketcher.Constraint("Vertical", 2))
sketch12.addConstraint(Sketcher.Constraint("Horizontal", 3))
sketch12.addConstraint(Sketcher.Constraint("Vertical", 4))
sketch12.addConstraint(Sketcher.Constraint("Horizontal", 5))
sketch12.addConstraint(Sketcher.Constraint("Vertical", 6))
sketch12.addConstraint(Sketcher.Constraint("Horizontal", 7))
sketch12.addConstraint(Sketcher.Constraint("Vertical", 8))
sketch12.addConstraint(Sketcher.Constraint("Horizontal", 9))
sketch12.addConstraint(Sketcher.Constraint("Vertical", 10))
sketch12.addConstraint(Sketcher.Constraint("Horizontal", 11))
sketch12.addConstraint(Sketcher.Constraint("Horizontal", 1, 2, 4, 2))
sketch12.addConstraint(Sketcher.Constraint("Horizontal", 3, 2, 6, 2))
sketch12.addConstraint(Sketcher.Constraint("Horizontal", 5, 2, 8, 2))
sketch12.addConstraint(Sketcher.Constraint("Horizontal", 7, 2, 10, 2))
sketch12.addConstraint(Sketcher.Constraint("DistanceX", 1, 2, 1, 1, Q("9 mm")))
sketch12.addConstraint(Sketcher.Constraint("DistanceX", 5, 2, 5, 1, Q("16 mm")))
sketch12.addConstraint(Sketcher.Constraint("DistanceX", 9, 2, 9, 1, Q("7 mm")))
sketch12.addConstraint(Sketcher.Constraint("DistanceY", 0, 2, 0, 1, Q("8 mm")))
sketch12.addConstraint(Sketcher.Constraint("DistanceY", -1, 1, 0, 2, Q("7 mm")))
sketch12.addConstraint(Sketcher.Constraint("DistanceX", 8, 2, 5, 2, Q("10 mm")))
sketch12.addConstraint(Sketcher.Constraint("DistanceX", 4, 2, 1, 2, Q("8.9 mm")))
sketch12.addConstraint(Sketcher.Constraint("DistanceX", -1, 1, 0, 2, Q("36.15 mm")))
pocket10 = body.newObject("PartDesign::Pocket", "Pocket009")
pocket10.Profile = sketch12
pocket10.Length = 5
pocket10.Reversed = True

# Sketch on YZ plane
sketch13 = body.newObject("Sketcher::SketchObject", "Sketch012")
sketch13.AttachmentSupport = (doc.getObject("YZ_Plane"), [""])
sketch13.MapMode = "FlatFace"
sketch13.AttachmentOffset = App.Placement(App.Vector(0, 0, -45.25), App.Rotation())
sketch13.addGeometry(Part.LineSegment(App.Vector(26, 23, 0), App.Vector(26, 7, 0)), False)
sketch13.addGeometry(Part.LineSegment(App.Vector(26, 7, 0), App.Vector(-26, 7, 0)), False)
sketch13.addGeometry(Part.LineSegment(App.Vector(-26, 7, 0), App.Vector(-26, 23, 0)), False)
sketch13.addGeometry(Part.LineSegment(App.Vector(-26, 23, 0), App.Vector(26, 23, 0)), False)
sketch13.addConstraint(Sketcher.Constraint("Coincident", 0, 2, 1, 1))
sketch13.addConstraint(Sketcher.Constraint("Coincident", 1, 2, 2, 1))
sketch13.addConstraint(Sketcher.Constraint("Coincident", 2, 2, 3, 1))
sketch13.addConstraint(Sketcher.Constraint("Coincident", 3, 2, 0, 1))
sketch13.addConstraint(Sketcher.Constraint("Vertical", 0))
sketch13.addConstraint(Sketcher.Constraint("Horizontal", 1))
sketch13.addConstraint(Sketcher.Constraint("Vertical", 2))
sketch13.addConstraint(Sketcher.Constraint("Horizontal", 3))
sketch13.addConstraint(Sketcher.Constraint("DistanceY", 0, 2, 0, 1, Q("16 mm")))
sketch13.addConstraint(Sketcher.Constraint("DistanceX", 1, 2, 1, 1, Q("52.4 mm")))
sketch13.addConstraint(Sketcher.Constraint("DistanceX", -1, 1, 0, 2, Q("25.9 mm")))
sketch13.addConstraint(Sketcher.Constraint("DistanceY", -1, 1, 0, 2, Q("6.6 mm")))
pocket11 = body.newObject("PartDesign::Pocket", "Pocket010")
pocket11.Profile = sketch13
pocket11.Length = 5
pocket11.Reversed = True

# Sketch on XY plane
sketch14 = body.newObject("Sketcher::SketchObject", "Sketch013")
sketch14.AttachmentSupport = (doc.getObject("XY_Plane"), [""])
sketch14.MapMode = "FlatFace"
sketch14.addGeometry(Part.LineSegment(App.Vector(32, -6, 0), App.Vector(32, 6, 0)), False)
sketch14.addGeometry(Part.LineSegment(App.Vector(32, 6, 0), App.Vector(45, 6, 0)), False)
sketch14.addGeometry(Part.LineSegment(App.Vector(45, 6, 0), App.Vector(45, -6, 0)), False)
sketch14.addGeometry(Part.LineSegment(App.Vector(45, -6, 0), App.Vector(32, -6, 0)), False)
sketch14.addConstraint(Sketcher.Constraint("Coincident", 0, 2, 1, 1))
sketch14.addConstraint(Sketcher.Constraint("Coincident", 1, 2, 2, 1))
sketch14.addConstraint(Sketcher.Constraint("Coincident", 2, 2, 3, 1))
sketch14.addConstraint(Sketcher.Constraint("Coincident", 3, 2, 0, 1))
sketch14.addConstraint(Sketcher.Constraint("Vertical", 0))
sketch14.addConstraint(Sketcher.Constraint("Horizontal", 1))
sketch14.addConstraint(Sketcher.Constraint("Vertical", 2))
sketch14.addConstraint(Sketcher.Constraint("Horizontal", 3))
sketch14.addConstraint(Sketcher.Constraint("DistanceY", 0, 1, 0, 2, Q("12 mm")))
sketch14.addConstraint(Sketcher.Constraint("DistanceY", -1, 1, 0, 2, Q("6 mm")))
sketch14.addConstraint(Sketcher.Constraint("DistanceX", -1, 1, 1, 2, Q("45.25 mm")))
sketch14.addConstraint(Sketcher.Constraint("DistanceX", 1, 1, 1, 2, Q("13.003716 mm")))
pocket12 = body.newObject("PartDesign::Pocket", "Pocket011")
pocket12.Profile = sketch14
pocket12.Length = 8
pocket12.Reversed = True

doc.recompute()
